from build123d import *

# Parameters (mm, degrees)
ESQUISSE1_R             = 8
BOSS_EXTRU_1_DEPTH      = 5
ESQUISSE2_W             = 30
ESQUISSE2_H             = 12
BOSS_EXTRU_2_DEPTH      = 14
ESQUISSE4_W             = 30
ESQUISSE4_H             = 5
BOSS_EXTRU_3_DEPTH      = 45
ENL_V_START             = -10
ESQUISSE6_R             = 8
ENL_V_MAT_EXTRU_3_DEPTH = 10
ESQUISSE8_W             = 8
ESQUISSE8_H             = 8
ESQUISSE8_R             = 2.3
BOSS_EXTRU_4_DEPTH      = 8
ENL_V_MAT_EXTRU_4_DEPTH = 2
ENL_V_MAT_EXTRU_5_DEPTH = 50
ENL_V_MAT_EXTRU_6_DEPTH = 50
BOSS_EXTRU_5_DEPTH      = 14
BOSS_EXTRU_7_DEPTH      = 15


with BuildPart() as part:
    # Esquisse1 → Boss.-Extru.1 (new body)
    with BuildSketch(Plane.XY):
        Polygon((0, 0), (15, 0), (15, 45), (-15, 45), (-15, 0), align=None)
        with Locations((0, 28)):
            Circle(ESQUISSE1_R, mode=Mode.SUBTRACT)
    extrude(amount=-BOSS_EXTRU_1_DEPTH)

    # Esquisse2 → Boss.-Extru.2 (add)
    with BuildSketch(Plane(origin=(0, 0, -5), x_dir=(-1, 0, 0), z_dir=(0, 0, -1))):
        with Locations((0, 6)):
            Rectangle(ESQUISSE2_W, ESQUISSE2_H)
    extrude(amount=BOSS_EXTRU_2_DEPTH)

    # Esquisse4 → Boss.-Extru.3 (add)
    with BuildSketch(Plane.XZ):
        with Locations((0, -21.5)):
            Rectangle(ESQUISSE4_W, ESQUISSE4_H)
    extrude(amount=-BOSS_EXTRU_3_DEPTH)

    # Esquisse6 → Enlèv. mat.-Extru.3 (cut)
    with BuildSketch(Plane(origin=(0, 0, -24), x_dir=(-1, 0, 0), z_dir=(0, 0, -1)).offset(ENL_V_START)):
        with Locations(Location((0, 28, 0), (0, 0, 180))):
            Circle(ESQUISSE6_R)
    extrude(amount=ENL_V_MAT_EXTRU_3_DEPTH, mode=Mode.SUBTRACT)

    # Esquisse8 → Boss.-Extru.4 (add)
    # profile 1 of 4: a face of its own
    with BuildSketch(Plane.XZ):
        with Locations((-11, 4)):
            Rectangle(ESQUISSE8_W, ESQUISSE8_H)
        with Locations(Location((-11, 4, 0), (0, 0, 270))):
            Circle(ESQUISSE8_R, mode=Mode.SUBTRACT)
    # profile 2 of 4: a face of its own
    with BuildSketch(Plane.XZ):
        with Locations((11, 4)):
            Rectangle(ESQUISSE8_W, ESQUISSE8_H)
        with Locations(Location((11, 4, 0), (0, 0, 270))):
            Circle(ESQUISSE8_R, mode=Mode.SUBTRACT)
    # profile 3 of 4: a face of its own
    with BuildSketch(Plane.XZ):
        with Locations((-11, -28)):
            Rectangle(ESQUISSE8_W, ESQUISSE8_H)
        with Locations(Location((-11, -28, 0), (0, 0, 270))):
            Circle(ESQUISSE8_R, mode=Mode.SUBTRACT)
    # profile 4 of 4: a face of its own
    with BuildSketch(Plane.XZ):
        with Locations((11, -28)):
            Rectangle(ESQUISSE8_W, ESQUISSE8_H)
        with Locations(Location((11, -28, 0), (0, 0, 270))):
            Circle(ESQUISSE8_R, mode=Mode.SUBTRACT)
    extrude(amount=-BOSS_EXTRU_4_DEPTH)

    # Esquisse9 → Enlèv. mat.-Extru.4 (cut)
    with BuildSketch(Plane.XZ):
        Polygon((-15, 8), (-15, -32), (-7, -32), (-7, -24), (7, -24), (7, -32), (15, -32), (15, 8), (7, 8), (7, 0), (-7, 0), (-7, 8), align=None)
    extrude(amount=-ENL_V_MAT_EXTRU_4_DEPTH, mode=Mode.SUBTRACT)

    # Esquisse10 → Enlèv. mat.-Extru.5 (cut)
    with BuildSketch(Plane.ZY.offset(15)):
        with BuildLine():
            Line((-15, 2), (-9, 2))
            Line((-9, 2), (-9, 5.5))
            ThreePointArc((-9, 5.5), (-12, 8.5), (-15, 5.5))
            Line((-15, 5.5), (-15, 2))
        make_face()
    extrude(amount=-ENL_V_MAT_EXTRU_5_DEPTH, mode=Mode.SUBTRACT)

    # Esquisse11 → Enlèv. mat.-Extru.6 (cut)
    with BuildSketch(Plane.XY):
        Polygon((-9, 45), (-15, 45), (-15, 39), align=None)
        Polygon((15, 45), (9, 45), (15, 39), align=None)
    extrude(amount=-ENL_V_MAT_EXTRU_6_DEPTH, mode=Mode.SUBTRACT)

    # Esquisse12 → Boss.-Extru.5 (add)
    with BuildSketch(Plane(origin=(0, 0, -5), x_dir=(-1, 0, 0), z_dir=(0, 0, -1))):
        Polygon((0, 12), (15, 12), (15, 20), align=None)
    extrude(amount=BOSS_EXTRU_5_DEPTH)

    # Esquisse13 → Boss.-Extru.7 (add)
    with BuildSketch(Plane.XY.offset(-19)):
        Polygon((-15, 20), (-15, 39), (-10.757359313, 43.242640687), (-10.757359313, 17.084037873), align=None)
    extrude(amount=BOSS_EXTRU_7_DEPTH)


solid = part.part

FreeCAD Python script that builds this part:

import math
import FreeCAD as App
import Part
import Sketcher
Q = App.Units.Quantity

doc = App.newDocument("Part")
body = doc.addObject("PartDesign::Body", "Body")

# Sketch on XY plane
sketch1 = doc.addObject("Sketcher::SketchObject", "Sketch")
body.addObject(sketch1)
sketch1.AttachmentSupport = (doc.XY_Plane, [""])
sketch1.MapMode = "FlatFace"
sketch1.addGeometry(Part.LineSegment(App.Vector(15, 0, 0), App.Vector(15, 45, 0)), False)
sketch1.addGeometry(Part.LineSegment(App.Vector(15, 45, 0), App.Vector(-15, 45, 0)), False)
sketch1.addGeometry(Part.LineSegment(App.Vector(-15, 45, 0), App.Vector(-15, 0, 0)), False)
sketch1.addGeometry(Part.LineSegment(App.Vector(-15, 0, 0), App.Vector(15, 0, 0)), False)
sketch1.addGeometry(Part.Circle(App.Vector(0, 28, 0), App.Vector(0, 0, 1), 8), False)
sketch1.addConstraint(Sketcher.Constraint("Coincident", 0, 2, 1, 1))
sketch1.addConstraint(Sketcher.Constraint("Coincident", 1, 2, 2, 1))
sketch1.addConstraint(Sketcher.Constraint("Coincident", 2, 2, 3, 1))
sketch1.addConstraint(Sketcher.Constraint("Coincident", 3, 2, 0, 1))
sketch1.addConstraint(Sketcher.Constraint("Vertical", 0))
sketch1.addConstraint(Sketcher.Constraint("Horizontal", 1))
sketch1.addConstraint(Sketcher.Constraint("Vertical", 2))
sketch1.addConstraint(Sketcher.Constraint("Horizontal", 3))
sketch1.addConstraint(Sketcher.Constraint("Symmetric", 2, 2, 3, 2, -1, 1))
sketch1.addConstraint(Sketcher.Constraint("PointOnObject", 4, 3, -2))
sketch1.addConstraint(Sketcher.Constraint("Diameter", 4, Q("16 mm")))
sketch1.addConstraint(Sketcher.Constraint("DistanceX", 1, 2, 1, 1, Q("30 mm")))
sketch1.addConstraint(Sketcher.Constraint("DistanceY", 0, 1, 0, 2, Q("45 mm")))
sketch1.addConstraint(Sketcher.Constraint("DistanceY", -1, 1, 4, 3, Q("28 mm")))
pad1 = doc.addObject("PartDesign::Pad", "Pad")
body.addObject(pad1)
pad1.Profile = sketch1
pad1.Length = 5
pad1.Reversed = True

# Sketch on XY plane
sketch2 = doc.addObject("Sketcher::SketchObject", "Sketch001")
body.addObject(sketch2)
sketch2.AttachmentSupport = (doc.XY_Plane, [""])
sketch2.MapMode = "FlatFace"
sketch2.AttachmentOffset = App.Placement(App.Vector(0, 0, -5), App.Rotation())
sketch2.addGeometry(Part.LineSegment(App.Vector(15, 12, 0), App.Vector(15, 0, 0)), False)
sketch2.addGeometry(Part.LineSegment(App.Vector(15, 0, 0), App.Vector(-15, 0, 0)), False)
sketch2.addGeometry(Part.LineSegment(App.Vector(-15, 0, 0), App.Vector(-15, 12, 0)), False)
sketch2.addGeometry(Part.LineSegment(App.Vector(-15, 12, 0), App.Vector(15, 12, 0)), False)
sketch2.addConstraint(Sketcher.Constraint("Coincident", 0, 2, 1, 1))
sketch2.addConstraint(Sketcher.Constraint("Coincident", 1, 2, 2, 1))
sketch2.addConstraint(Sketcher.Constraint("Coincident", 2, 2, 3, 1))
sketch2.addConstraint(Sketcher.Constraint("Coincident", 3, 2, 0, 1))
sketch2.addConstraint(Sketcher.Constraint("Vertical", 0))
sketch2.addConstraint(Sketcher.Constraint("Horizontal", 1))
sketch2.addConstraint(Sketcher.Constraint("Vertical", 2))
sketch2.addConstraint(Sketcher.Constraint("Horizontal", 3))
sketch2.addConstraint(Sketcher.Constraint("Symmetric", 0, 2, 1, 2, -1, 1))
sketch2.addConstraint(Sketcher.Constraint("DistanceX", 1, 2, 1, 1, Q("30 mm")))
sketch2.addConstraint(Sketcher.Constraint("DistanceY", 0, 2, 0, 1, Q("12 mm")))
pad2 = doc.addObject("PartDesign::Pad", "Pad001")
body.addObject(pad2)
pad2.Profile = sketch2
pad2.Length = 14
pad2.Reversed = True

# Sketch on XZ plane
sketch3 = doc.addObject("Sketcher::SketchObject", "Sketch002")
body.addObject(sketch3)
sketch3.AttachmentSupport = (doc.XZ_Plane, [""])
sketch3.MapMode = "FlatFace"
sketch3.addGeometry(Part.LineSegment(App.Vector(-15, -19, 0), App.Vector(-15, -24, 0)), False)
sketch3.addGeometry(Part.LineSegment(App.Vector(-15, -24, 0), App.Vector(15, -24, 0)), False)
sketch3.addGeometry(Part.LineSegment(App.Vector(15, -24, 0), App.Vector(15, -19, 0)), False)
sketch3.addGeometry(Part.LineSegment(App.Vector(15, -19, 0), App.Vector(-15, -19, 0)), False)
sketch3.addConstraint(Sketcher.Constraint("Coincident", 0, 2, 1, 1))
sketch3.addConstraint(Sketcher.Constraint("Coincident", 1, 2, 2, 1))
sketch3.addConstraint(Sketcher.Constraint("Coincident", 2, 2, 3, 1))
sketch3.addConstraint(Sketcher.Constraint("Coincident", 3, 2, 0, 1))
sketch3.addConstraint(Sketcher.Constraint("Vertical", 0))
sketch3.addConstraint(Sketcher.Constraint("Horizontal", 1))
sketch3.addConstraint(Sketcher.Constraint("Vertical", 2))
sketch3.addConstraint(Sketcher.Constraint("Horizontal", 3))
sketch3.addConstraint(Sketcher.Constraint("DistanceX", 1, 1, 1, 2, Q("30 mm")))
sketch3.addConstraint(Sketcher.Constraint("DistanceY", 0, 2, 0, 1, Q("5 mm")))
sketch3.addConstraint(Sketcher.Constraint("DistanceX", 0, 2, -1, 1, Q("15 mm")))
sketch3.addConstraint(Sketcher.Constraint("DistanceY", 0, 2, -1, 1, Q("24 mm")))
pad3 = doc.addObject("PartDesign::Pad", "Pad002")
body.addObject(pad3)
pad3.Profile = sketch3
pad3.Length = 45
pad3.Reversed = True

# Sketch on XY plane
sketch4 = doc.addObject("Sketcher::SketchObject", "Sketch003")
body.addObject(sketch4)
sketch4.AttachmentSupport = (doc.XY_Plane, [""])
sketch4.MapMode = "FlatFace"
sketch4.AttachmentOffset = App.Placement(App.Vector(0, 0, -14), App.Rotation())
sketch4.addGeometry(Part.Circle(App.Vector(0, 28, 0), App.Vector(0, 0, 1), 8), False)
sketch4.addConstraint(Sketcher.Constraint("PointOnObject", 0, 3, -2))
sketch4.addConstraint(Sketcher.Constraint("Diameter", 0, Q("16 mm")))
sketch4.addConstraint(Sketcher.Constraint("DistanceY", -1, 1, 0, 3, Q("28 mm")))
pocket1 = doc.addObject("PartDesign::Pocket", "Pocket")
body.addObject(pocket1)
pocket1.Profile = sketch4
pocket1.Length = 10

# Sketch on XZ plane
sketch5 = doc.addObject("Sketcher::SketchObject", "Sketch004")
body.addObject(sketch5)
sketch5.AttachmentSupport = (doc.XZ_Plane, [""])
sketch5.MapMode = "FlatFace"
sketch5.addGeometry(Part.LineSegment(App.Vector(-15, 8, 0), App.Vector(-15, 0, 0)), False)
sketch5.addGeometry(Part.LineSegment(App.Vector(-15, 0, 0), App.Vector(-7, 0, 0)), False)
sketch5.addGeometry(Part.LineSegment(App.Vector(-7, 0, 0), App.Vector(-7, 8, 0)), False)
sketch5.addGeometry(Part.LineSegment(App.Vector(-7, 8, 0), App.Vector(-15, 8, 0)), False)
sketch5.addGeometry(Part.Circle(App.Vector(-11, 4, 0), App.Vector(0, 0, 1), 2.3), False)
sketch5.addGeometry(Part.LineSegment(App.Vector(7, 8, 0), App.Vector(7, 0, 0)), False)
sketch5.addGeometry(Part.LineSegment(App.Vector(7, 0, 0), App.Vector(15, 0, 0)), False)
sketch5.addGeometry(Part.LineSegment(App.Vector(15, 0, 0), App.Vector(15, 8, 0)), False)
sketch5.addGeometry(Part.LineSegment(App.Vector(15, 8, 0), App.Vector(7, 8, 0)), False)
sketch5.addGeometry(Part.Circle(App.Vector(11, 4, 0), App.Vector(0, 0, 1), 2.3), False)
sketch5.addGeometry(Part.LineSegment(App.Vector(-15, -24, 0), App.Vector(-15, -32, 0)), False)
sketch5.addGeometry(Part.LineSegment(App.Vector(-15, -32, 0), App.Vector(-7, -32, 0)), False)
sketch5.addGeometry(Part.LineSegment(App.Vector(-7, -32, 0), App.Vector(-7, -24, 0)), False)
sketch5.addGeometry(Part.LineSegment(App.Vector(-7, -24, 0), App.Vector(-15, -24, 0)), False)
sketch5.addGeometry(Part.Circle(App.Vector(-11, -28, 0), App.Vector(0, 0, 1), 2.3), False)
sketch5.addGeometry(Part.LineSegment(App.Vector(7, -24, 0), App.Vector(7, -32, 0)), False)
sketch5.addGeometry(Part.LineSegment(App.Vector(7, -32, 0), App.Vector(15, -32, 0)), False)
sketch5.addGeometry(Part.LineSegment(App.Vector(15, -32, 0), App.Vector(15, -24, 0)), False)
sketch5.addGeometry(Part.LineSegment(App.Vector(15, -24, 0), App.Vector(7, -24, 0)), False)
sketch5.addGeometry(Part.Circle(App.Vector(11, -28, 0), App.Vector(0, 0, 1), 2.3), False)
sketch5.addConstraint(Sketcher.Constraint("Coincident", 0, 2, 1, 1))
sketch5.addConstraint(Sketcher.Constraint("Coincident", 1, 2, 2, 1))
sketch5.addConstraint(Sketcher.Constraint("Coincident", 2, 2, 3, 1))
sketch5.addConstraint(Sketcher.Constraint("Coincident", 3, 2, 0, 1))
sketch5.addConstraint(Sketcher.Constraint("Coincident", 5, 2, 6, 1))
sketch5.addConstraint(Sketcher.Constraint("Coincident", 6, 2, 7, 1))
sketch5.addConstraint(Sketcher.Constraint("Coincident", 7, 2, 8, 1))
sketch5.addConstraint(Sketcher.Constraint("Coincident", 8, 2, 5, 1))
sketch5.addConstraint(Sketcher.Constraint("Coincident", 10, 2, 11, 1))
sketch5.addConstraint(Sketcher.Constraint("Coincident", 11, 2, 12, 1))
sketch5.addConstraint(Sketcher.Constraint("Coincident", 12, 2, 13, 1))
sketch5.addConstraint(Sketcher.Constraint("Coincident", 13, 2, 10, 1))
sketch5.addConstraint(Sketcher.Constraint("Coincident", 15, 2, 16, 1))
sketch5.addConstraint(Sketcher.Constraint("Coincident", 16, 2, 17, 1))
sketch5.addConstraint(Sketcher.Constraint("Coincident", 17, 2, 18, 1))
sketch5.addConstraint(Sketcher.Constraint("Coincident", 18, 2, 15, 1))
sketch5.addConstraint(Sketcher.Constraint("Vertical", 0))
sketch5.addConstraint(Sketcher.Constraint("Horizontal", 1))
sketch5.addConstraint(Sketcher.Constraint("Vertical", 2))
sketch5.addConstraint(Sketcher.Constraint("Horizontal", 3))
sketch5.addConstraint(Sketcher.Constraint("Vertical", 5))
sketch5.addConstraint(Sketcher.Constraint("Horizontal", 6))
sketch5.addConstraint(Sketcher.Constraint("Vertical", 7))
sketch5.addConstraint(Sketcher.Constraint("Horizontal", 8))
sketch5.addConstraint(Sketcher.Constraint("Vertical", 10))
sketch5.addConstraint(Sketcher.Constraint("Horizontal", 11))
sketch5.addConstraint(Sketcher.Constraint("Vertical", 12))
sketch5.addConstraint(Sketcher.Constraint("Horizontal", 13))
sketch5.addConstraint(Sketcher.Constraint("Vertical", 15))
sketch5.addConstraint(Sketcher.Constraint("Horizontal", 16))
sketch5.addConstraint(Sketcher.Constraint("Vertical", 17))
sketch5.addConstraint(Sketcher.Constraint("Horizontal", 18))
sketch5.addConstraint(Sketcher.Constraint("Equal", 4, 9))
sketch5.addConstraint(Sketcher.Constraint("Equal", 9, 14))
sketch5.addConstraint(Sketcher.Constraint("Equal", 14, 19))
sketch5.addConstraint(Sketcher.Constraint("Symmetric", 1, 2, 5, 2, -1, 1))
sketch5.addConstraint(Sketcher.Constraint("Symmetric", 4, 3, 9, 3, -2))
sketch5.addConstraint(Sketcher.Constraint("Symmetric", 14, 3, 19, 3, -2))
sketch5.addConstraint(Sketcher.Constraint("Symmetric", 0, 2, 6, 2, -2))
sketch5.addConstraint(Sketcher.Constraint("Symmetric", 11, 2, 15, 2, -2))
sketch5.addConstraint(Sketcher.Constraint("Symmetric", 13, 2, 17, 2, -2))
sketch5.addConstraint(Sketcher.Constraint("Horizontal", 3, 2, 7, 2))
sketch5.addConstraint(Sketcher.Constraint("Vertical", 4, 3, 14, 3))
sketch5.addConstraint(Sketcher.Constraint("Vertical", 3, 2, 10, 2))
sketch5.addConstraint(Sketcher.Constraint("Vertical", 2, 2, 11, 2))
sketch5.addConstraint(Sketcher.Constraint("Equal", 18, 0))
sketch5.addConstraint(Sketcher.Constraint("Equal", 7, 10))
sketch5.addConstraint(Sketcher.Constraint("Diameter", 4, Q("4.6 mm")))
sketch5.addConstraint(Sketcher.Constraint("DistanceX", 1, 1, 1, 2, Q("8 mm")))
sketch5.addConstraint(Sketcher.Constraint("DistanceX", 4, 3, -1, 1, Q("11 mm")))
sketch5.addConstraint(Sketcher.Constraint("DistanceY", -1, 1, 4, 3, Q("4 mm")))
sketch5.addConstraint(Sketcher.Constraint("DistanceY", 14, 3, -1, 1, Q("28 mm")))
sketch5.addConstraint(Sketcher.Constraint("DistanceX", 0, 2, -1, 1, Q("15 mm")))
sketch5.addConstraint(Sketcher.Constraint("DistanceY", 10, 2, -1, 1, Q("32 mm")))
pad4 = doc.addObject("PartDesign::Pad", "Pad003")
body.addObject(pad4)
pad4.Profile = sketch5
pad4.Length = 8
pad4.Reversed = True

# Sketch on XZ plane
sketch6 = doc.addObject("Sketcher::SketchObject", "Sketch005")
body.addObject(sketch6)
sketch6.AttachmentSupport = (doc.XZ_Plane, [""])
sketch6.MapMode = "FlatFace"
sketch6.addGeometry(Part.LineSegment(App.Vector(-15, 8, 0), App.Vector(-15, -32, 0)), False)
sketch6.addGeometry(Part.LineSegment(App.Vector(-15, -32, 0), App.Vector(-7, -32, 0)), False)
sketch6.addGeometry(Part.LineSegment(App.Vector(-7, -32, 0), App.Vector(-7, -24, 0)), False)
sketch6.addGeometry(Part.LineSegment(App.Vector(-7, -24, 0), App.Vector(7, -24, 0)), False)
sketch6.addGeometry(Part.LineSegment(App.Vector(7, -24, 0), App.Vector(7, -32, 0)), False)
sketch6.addGeometry(Part.LineSegment(App.Vector(7, -32, 0), App.Vector(15, -32, 0)), False)
sketch6.addGeometry(Part.LineSegment(App.Vector(15, -32, 0), App.Vector(15, 8, 0)), False)
sketch6.addGeometry(Part.LineSegment(App.Vector(15, 8, 0), App.Vector(7, 8, 0)), False)
sketch6.addGeometry(Part.LineSegment(App.Vector(7, 8, 0), App.Vector(7, 0, 0)), False)
sketch6.addGeometry(Part.LineSegment(App.Vector(7, 0, 0), App.Vector(-7, 0, 0)), False)
sketch6.addGeometry(Part.LineSegment(App.Vector(-7, 0, 0), App.Vector(-7, 8, 0)), False)
sketch6.addGeometry(Part.LineSegment(App.Vector(-7, 8, 0), App.Vector(-15, 8, 0)), False)
sketch6.addConstraint(Sketcher.Constraint("Coincident", 0, 2, 1, 1))
sketch6.addConstraint(Sketcher.Constraint("Coincident", 1, 2, 2, 1))
sketch6.addConstraint(Sketcher.Constraint("Coincident", 2, 2, 3, 1))
sketch6.addConstraint(Sketcher.Constraint("Coincident", 3, 2, 4, 1))
sketch6.addConstraint(Sketcher.Constraint("Coincident", 4, 2, 5, 1))
sketch6.addConstraint(Sketcher.Constraint("Coincident", 5, 2, 6, 1))
sketch6.addConstraint(Sketcher.Constraint("Coincident", 6, 2, 7, 1))
sketch6.addConstraint(Sketcher.Constraint("Coincident", 7, 2, 8, 1))
sketch6.addConstraint(Sketcher.Constraint("Coincident", 8, 2, 9, 1))
sketch6.addConstraint(Sketcher.Constraint("Coincident", 9, 2, 10, 1))
sketch6.addConstraint(Sketcher.Constraint("Coincident", 10, 2, 11, 1))
sketch6.addConstraint(Sketcher.Constraint("Coincident", 11, 2, 0, 1))
sketch6.addConstraint(Sketcher.Constraint("Vertical", 0))
sketch6.addConstraint(Sketcher.Constraint("Horizontal", 1))
sketch6.addConstraint(Sketcher.Constraint("Vertical", 2))
sketch6.addConstraint(Sketcher.Constraint("Horizontal", 3))
sketch6.addConstraint(Sketcher.Constraint("Vertical", 4))
sketch6.addConstraint(Sketcher.Constraint("Horizontal", 5))
sketch6.addConstraint(Sketcher.Constraint("Vertical", 6))
sketch6.addConstraint(Sketcher.Constraint("Horizontal", 7))
sketch6.addConstraint(Sketcher.Constraint("Vertical", 8))
sketch6.addConstraint(Sketcher.Constraint("Horizontal", 9))
sketch6.addConstraint(Sketcher.Constraint("Vertical", 10))
sketch6.addConstraint(Sketcher.Constraint("Horizontal", 11))
sketch6.addConstraint(Sketcher.Constraint("Symmetric", 8, 2, 9, 2, -1, 1))
sketch6.addConstraint(Sketcher.Constraint("Symmetric", 1, 2, 4, 2, -2))
sketch6.addConstraint(Sketcher.Constraint("Symmetric", 6, 2, 11, 2, -2))
sketch6.addConstraint(Sketcher.Constraint("Vertical", 4, 2, 7, 2))
sketch6.addConstraint(Sketcher.Constraint("Equal", 11, 2))
sketch6.addConstraint(Sketcher.Constraint("Equal", 4, 8))
sketch6.addConstraint(Sketcher.Constraint("DistanceX", 1, 1, 1, 2, Q("8 mm")))
sketch6.addConstraint(Sketcher.Constraint("DistanceX", 3, 1, 3, 2, Q("14 mm")))
sketch6.addConstraint(Sketcher.Constraint("DistanceY", 0, 2, 0, 1, Q("40 mm")))
pocket2 = doc.addObject("PartDesign::Pocket", "Pocket001")
body.addObject(pocket2)
pocket2.Profile = sketch6
pocket2.Length = 2

# Sketch on YZ plane
sketch7 = doc.addObject("Sketcher::SketchObject", "Sketch006")
body.addObject(sketch7)
sketch7.AttachmentSupport = (doc.YZ_Plane, [""])
sketch7.MapMode = "FlatFace"
sketch7.AttachmentOffset = App.Placement(App.Vector(0, 0, -15), App.Rotation())
sketch7.addGeometry(Part.LineSegment(App.Vector(2, -15, 0), App.Vector(2, -9, 0)), False)
sketch7.addGeometry(Part.LineSegment(App.Vector(2, -9, 0), App.Vector(5.5, -9, 0)), False)
sketch7.addGeometry(Part.ArcOfCircle(Part.Circle(App.Vector(5.5, -12, 0), App.Vector(0, 0, 1), 3), math.radians(-90), math.radians(90)), False)
sketch7.addGeometry(Part.LineSegment(App.Vector(5.5, -15, 0), App.Vector(2, -15, 0)), False)
sketch7.addConstraint(Sketcher.Constraint("Coincident", 0, 2, 1, 1))
sketch7.addConstraint(Sketcher.Constraint("Tangent", 1, 2, 2, 2))
sketch7.addConstraint(Sketcher.Constraint("Tangent", 2, 1, 3, 1))
sketch7.addConstraint(Sketcher.Constraint("Coincident", 3, 2, 0, 1))
sketch7.addConstraint(Sketcher.Constraint("Vertical", 0))
sketch7.addConstraint(Sketcher.Constraint("Horizontal", 1))
sketch7.addConstraint(Sketcher.Constraint("Horizontal", 3))
sketch7.addConstraint(Sketcher.Constraint("Radius", 2, Q("3 mm")))
sketch7.addConstraint(Sketcher.Constraint("DistanceX", 1, 1, 1, 2, Q("3.5 mm")))
sketch7.addConstraint(Sketcher.Constraint("DistanceY", 2, 3, -1, 1, Q("12 mm")))
sketch7.addConstraint(Sketcher.Constraint("DistanceX", -1, 1, 0, 2, Q("2 mm")))
pocket3 = doc.addObject("PartDesign::Pocket", "Pocket002")
body.addObject(pocket3)
pocket3.Profile = sketch7
pocket3.Length = 50
pocket3.Reversed = True

# Sketch on XY plane
sketch8 = doc.addObject("Sketcher::SketchObject", "Sketch007")
body.addObject(sketch8)
sketch8.AttachmentSupport = (doc.XY_Plane, [""])
sketch8.MapMode = "FlatFace"
sketch8.addGeometry(Part.LineSegment(App.Vector(-9, 45, 0), App.Vector(-15, 45, 0)), False)
sketch8.addGeometry(Part.LineSegment(App.Vector(-15, 45, 0), App.Vector(-15, 39, 0)), False)
sketch8.addGeometry(Part.LineSegment(App.Vector(-15, 39, 0), App.Vector(-9, 45, 0)), False)
sketch8.addGeometry(Part.LineSegment(App.Vector(15, 45, 0), App.Vector(9, 45, 0)), False)
sketch8.addGeometry(Part.LineSegment(App.Vector(9, 45, 0), App.Vector(15, 39, 0)), False)
sketch8.addGeometry(Part.LineSegment(App.Vector(15, 39, 0), App.Vector(15, 45, 0)), False)
sketch8.addConstraint(Sketcher.Constraint("Coincident", 0, 2, 1, 1))
sketch8.addConstraint(Sketcher.Constraint("Coincident", 1, 2, 2, 1))
sketch8.addConstraint(Sketcher.Constraint("Coincident", 2, 2, 0, 1))
sketch8.addConstraint(Sketcher.Constraint("Coincident", 3, 2, 4, 1))
sketch8.addConstraint(Sketcher.Constraint("Coincident", 4, 2, 5, 1))
sketch8.addConstraint(Sketcher.Constraint("Coincident", 5, 2, 3, 1))
sketch8.addConstraint(Sketcher.Constraint("Horizontal", 0))
sketch8.addConstraint(Sketcher.Constraint("Vertical", 1))
sketch8.addConstraint(Sketcher.Constraint("Horizontal", 3))
sketch8.addConstraint(Sketcher.Constraint("Vertical", 5))
sketch8.addConstraint(Sketcher.Constraint("Symmetric", 2, 2, 3, 2, -2))
sketch8.addConstraint(Sketcher.Constraint("Symmetric", 1, 2, 4, 2, -2))
sketch8.addConstraint(Sketcher.Constraint("Perpendicular", 2, 4))
sketch8.addConstraint(Sketcher.Constraint("DistanceX", 0, 2, 0, 1, Q("6 mm")))
sketch8.addConstraint(Sketcher.Constraint("DistanceX", 0, 2, -1, 1, Q("15 mm")))
sketch8.addConstraint(Sketcher.Constraint("DistanceY", -1, 1, 0, 2, Q("45 mm")))
pocket4 = doc.addObject("PartDesign::Pocket", "Pocket003")
body.addObject(pocket4)
pocket4.Profile = sketch8
pocket4.Length = 50

# Sketch on XY plane
sketch9 = doc.addObject("Sketcher::SketchObject", "Sketch008")
body.addObject(sketch9)
sketch9.AttachmentSupport = (doc.XY_Plane, [""])
sketch9.MapMode = "FlatFace"
sketch9.AttachmentOffset = App.Placement(App.Vector(0, 0, -5), App.Rotation())
sketch9.addGeometry(Part.LineSegment(App.Vector(0, 12, 0), App.Vector(-15, 12, 0)), False)
sketch9.addGeometry(Part.LineSegment(App.Vector(-15, 12, 0), App.Vector(-15, 20, 0)), False)
sketch9.addGeometry(Part.LineSegment(App.Vector(-15, 20, 0), App.Vector(0, 12, 0)), False)
sketch9.addConstraint(Sketcher.Constraint("Coincident", 0, 2, 1, 1))
sketch9.addConstraint(Sketcher.Constraint("Coincident", 1, 2, 2, 1))
sketch9.addConstraint(Sketcher.Constraint("Coincident", 2, 2, 0, 1))
sketch9.addConstraint(Sketcher.Constraint("Horizontal", 0))
sketch9.addConstraint(Sketcher.Constraint("Vertical", 1))
sketch9.addConstraint(Sketcher.Constraint("PointOnObject", 2, 2, -2))
sketch9.addConstraint(Sketcher.Constraint("DistanceX", 0, 2, 0, 1, Q("15 mm")))
sketch9.addConstraint(Sketcher.Constraint("DistanceY", 1, 1, 1, 2, Q("8 mm")))
sketch9.addConstraint(Sketcher.Constraint("DistanceY", -1, 1, 0, 2, Q("12 mm")))
pad5 = doc.addObject("PartDesign::Pad", "Pad004")
body.addObject(pad5)
pad5.Profile = sketch9
pad5.Length = 14
pad5.Reversed = True

# Sketch on XY plane
sketch10 = doc.addObject("Sketcher::SketchObject", "Sketch009")
body.addObject(sketch10)
sketch10.AttachmentSupport = (doc.XY_Plane, [""])
sketch10.MapMode = "FlatFace"
sketch10.AttachmentOffset = App.Placement(App.Vector(0, 0, -19), App.Rotation())
sketch10.addGeometry(Part.LineSegment(App.Vector(-15, 39, 0), App.Vector(-15, 20, 0)), False)
sketch10.addGeometry(Part.LineSegment(App.Vector(-15, 20, 0), App.Vector(-11, 17, 0)), False)
sketch10.addGeometry(Part.LineSegment(App.Vector(-11, 17, 0), App.Vector(-11, 43, 0)), False)
sketch10.addGeometry(Part.LineSegment(App.Vector(-11, 43, 0), App.Vector(-15, 39, 0)), False)
sketch10.addConstraint(Sketcher.Constraint("Coincident", 0, 2, 1, 1))
sketch10.addConstraint(Sketcher.Constraint("Coincident", 1, 2, 2, 1))
sketch10.addConstraint(Sketcher.Constraint("Coincident", 2, 2, 3, 1))
sketch10.addConstraint(Sketcher.Constraint("Coincident", 3, 2, 0, 1))
sketch10.addConstraint(Sketcher.Constraint("Vertical", 0))
sketch10.addConstraint(Sketcher.Constraint("Vertical", 2))
sketch10.addConstraint(Sketcher.Constraint("DistanceY", 0, 2, 0, 1, Q("19 mm")))
sketch10.addConstraint(Sketcher.Constraint("Angle", 3, Q("-135 deg")))
sketch10.addConstraint(Sketcher.Constraint("Distance", 3, Q("6 mm")))
sketch10.addConstraint(Sketcher.Constraint("DistanceX", 0, 2, -1, 1, Q("15 mm")))
sketch10.addConstraint(Sketcher.Constraint("DistanceY", -1, 1, 0, 2, Q("20 mm")))
sketch10.addConstraint(Sketcher.Constraint("Distance", 1, Q("5.14809 mm")))
pad6 = doc.addObject("PartDesign::Pad", "Pad005")
body.addObject(pad6)
pad6.Profile = sketch10
pad6.Length = 15

doc.recompute()
